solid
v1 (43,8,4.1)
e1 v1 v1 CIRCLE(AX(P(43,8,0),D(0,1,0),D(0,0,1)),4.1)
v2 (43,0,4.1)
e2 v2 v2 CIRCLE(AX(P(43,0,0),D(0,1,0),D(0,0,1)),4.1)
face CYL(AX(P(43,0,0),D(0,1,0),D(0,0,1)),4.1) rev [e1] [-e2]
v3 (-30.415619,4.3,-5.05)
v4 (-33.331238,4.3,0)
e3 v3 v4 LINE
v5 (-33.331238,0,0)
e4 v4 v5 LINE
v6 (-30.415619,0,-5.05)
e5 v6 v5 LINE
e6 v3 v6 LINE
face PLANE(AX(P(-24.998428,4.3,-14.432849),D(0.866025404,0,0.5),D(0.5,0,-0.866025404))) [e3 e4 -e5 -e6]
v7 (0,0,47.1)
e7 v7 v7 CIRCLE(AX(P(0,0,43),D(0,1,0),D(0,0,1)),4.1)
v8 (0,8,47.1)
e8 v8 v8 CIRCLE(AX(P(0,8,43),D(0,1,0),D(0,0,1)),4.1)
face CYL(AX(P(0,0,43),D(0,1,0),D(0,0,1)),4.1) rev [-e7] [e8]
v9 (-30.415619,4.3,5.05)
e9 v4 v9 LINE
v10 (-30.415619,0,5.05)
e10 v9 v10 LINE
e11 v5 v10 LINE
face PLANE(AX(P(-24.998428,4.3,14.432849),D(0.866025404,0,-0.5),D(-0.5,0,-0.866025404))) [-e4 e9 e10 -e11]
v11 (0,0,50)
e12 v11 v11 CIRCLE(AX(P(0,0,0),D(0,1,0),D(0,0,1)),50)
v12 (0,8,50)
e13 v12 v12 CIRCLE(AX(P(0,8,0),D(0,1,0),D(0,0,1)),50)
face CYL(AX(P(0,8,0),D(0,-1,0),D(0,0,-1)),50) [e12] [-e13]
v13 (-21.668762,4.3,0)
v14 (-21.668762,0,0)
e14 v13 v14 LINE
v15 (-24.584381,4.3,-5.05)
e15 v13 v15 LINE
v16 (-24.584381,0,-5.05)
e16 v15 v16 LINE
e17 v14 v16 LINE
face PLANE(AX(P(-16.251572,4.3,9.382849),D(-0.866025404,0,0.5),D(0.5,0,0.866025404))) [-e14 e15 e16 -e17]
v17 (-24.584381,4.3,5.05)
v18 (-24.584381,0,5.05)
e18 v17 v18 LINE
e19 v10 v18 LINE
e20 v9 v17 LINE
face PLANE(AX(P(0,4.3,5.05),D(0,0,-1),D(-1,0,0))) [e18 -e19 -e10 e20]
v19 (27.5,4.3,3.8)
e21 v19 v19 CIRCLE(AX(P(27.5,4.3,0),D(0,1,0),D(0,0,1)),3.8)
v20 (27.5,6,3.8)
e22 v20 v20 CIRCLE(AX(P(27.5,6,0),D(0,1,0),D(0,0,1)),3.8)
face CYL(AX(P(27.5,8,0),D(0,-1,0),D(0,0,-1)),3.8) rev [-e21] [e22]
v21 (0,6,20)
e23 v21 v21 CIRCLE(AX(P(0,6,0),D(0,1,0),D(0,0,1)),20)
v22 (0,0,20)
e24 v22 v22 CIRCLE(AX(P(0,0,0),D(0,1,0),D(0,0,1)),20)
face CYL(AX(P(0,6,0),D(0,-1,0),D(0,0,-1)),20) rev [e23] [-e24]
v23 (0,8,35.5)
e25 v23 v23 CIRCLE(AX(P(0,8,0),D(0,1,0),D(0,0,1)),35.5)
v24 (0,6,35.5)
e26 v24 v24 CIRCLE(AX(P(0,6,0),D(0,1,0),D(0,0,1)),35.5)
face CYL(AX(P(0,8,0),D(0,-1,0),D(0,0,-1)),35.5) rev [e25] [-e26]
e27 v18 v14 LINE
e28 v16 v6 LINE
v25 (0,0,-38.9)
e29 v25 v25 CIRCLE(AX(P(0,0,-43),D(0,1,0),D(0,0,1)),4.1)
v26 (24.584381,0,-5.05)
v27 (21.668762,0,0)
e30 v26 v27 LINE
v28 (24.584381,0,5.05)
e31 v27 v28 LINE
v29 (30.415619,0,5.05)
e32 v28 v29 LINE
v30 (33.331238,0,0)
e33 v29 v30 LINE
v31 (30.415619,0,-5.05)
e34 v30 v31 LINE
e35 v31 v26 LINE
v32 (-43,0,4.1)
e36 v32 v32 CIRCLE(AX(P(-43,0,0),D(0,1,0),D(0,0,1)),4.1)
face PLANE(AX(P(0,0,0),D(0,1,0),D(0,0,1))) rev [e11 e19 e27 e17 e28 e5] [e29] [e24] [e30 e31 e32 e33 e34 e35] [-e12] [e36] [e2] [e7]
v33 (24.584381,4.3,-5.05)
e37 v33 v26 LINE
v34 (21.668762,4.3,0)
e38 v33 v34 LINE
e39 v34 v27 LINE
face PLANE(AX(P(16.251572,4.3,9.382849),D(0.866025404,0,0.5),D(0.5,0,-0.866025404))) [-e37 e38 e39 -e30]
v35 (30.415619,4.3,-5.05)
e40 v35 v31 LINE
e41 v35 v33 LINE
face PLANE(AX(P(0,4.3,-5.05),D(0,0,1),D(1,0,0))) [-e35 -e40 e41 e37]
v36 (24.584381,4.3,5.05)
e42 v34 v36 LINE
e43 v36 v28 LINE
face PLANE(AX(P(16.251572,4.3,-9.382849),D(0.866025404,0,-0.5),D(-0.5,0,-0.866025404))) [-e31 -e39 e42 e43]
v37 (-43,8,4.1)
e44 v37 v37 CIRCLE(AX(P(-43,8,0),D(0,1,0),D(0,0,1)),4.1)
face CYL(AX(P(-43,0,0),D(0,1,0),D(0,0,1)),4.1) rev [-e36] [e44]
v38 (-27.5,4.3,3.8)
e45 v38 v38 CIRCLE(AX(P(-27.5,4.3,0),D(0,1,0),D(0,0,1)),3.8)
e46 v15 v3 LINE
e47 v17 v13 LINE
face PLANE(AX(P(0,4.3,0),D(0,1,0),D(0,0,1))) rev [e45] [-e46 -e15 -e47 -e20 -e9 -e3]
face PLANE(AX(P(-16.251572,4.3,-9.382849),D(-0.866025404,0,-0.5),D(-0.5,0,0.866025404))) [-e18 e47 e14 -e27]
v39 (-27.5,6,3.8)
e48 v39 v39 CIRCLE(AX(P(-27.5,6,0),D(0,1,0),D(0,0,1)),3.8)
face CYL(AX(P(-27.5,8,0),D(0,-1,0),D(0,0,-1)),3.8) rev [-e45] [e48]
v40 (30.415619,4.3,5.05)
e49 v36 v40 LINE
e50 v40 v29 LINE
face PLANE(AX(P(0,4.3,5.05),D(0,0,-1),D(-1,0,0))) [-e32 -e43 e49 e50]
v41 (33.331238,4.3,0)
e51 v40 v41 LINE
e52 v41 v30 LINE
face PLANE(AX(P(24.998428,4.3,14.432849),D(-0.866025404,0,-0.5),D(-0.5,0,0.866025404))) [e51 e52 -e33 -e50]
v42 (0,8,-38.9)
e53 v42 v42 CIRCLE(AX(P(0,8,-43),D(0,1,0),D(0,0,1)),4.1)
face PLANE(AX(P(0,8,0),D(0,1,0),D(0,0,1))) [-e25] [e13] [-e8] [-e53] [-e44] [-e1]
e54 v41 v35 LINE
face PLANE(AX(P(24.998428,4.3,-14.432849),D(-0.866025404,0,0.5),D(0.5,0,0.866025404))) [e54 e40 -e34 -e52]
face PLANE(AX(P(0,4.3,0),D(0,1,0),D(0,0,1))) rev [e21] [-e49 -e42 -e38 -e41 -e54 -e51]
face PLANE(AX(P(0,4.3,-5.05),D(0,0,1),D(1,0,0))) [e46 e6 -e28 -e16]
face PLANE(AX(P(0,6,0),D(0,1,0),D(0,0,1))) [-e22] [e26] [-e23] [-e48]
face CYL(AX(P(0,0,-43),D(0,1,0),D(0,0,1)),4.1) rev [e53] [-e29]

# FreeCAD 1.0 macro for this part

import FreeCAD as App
import Part
import Sketcher
Q = App.Units.Quantity


def add_polygon(sketch, points):
    """Adds a closed chain of lines whose ends are joined by coincident constraints."""
    first, n = sketch.GeometryCount, len(points)
    for a, b in zip(points, points[1:] + points[:1]):
        sketch.addGeometry(Part.LineSegment(App.Vector(*a, 0), App.Vector(*b, 0)), False)
    for i in range(n):
        sketch.addConstraint(Sketcher.Constraint("Coincident", first + i, 2, first + (i + 1) % n, 1))

doc = App.newDocument("Part")
body = doc.addObject("PartDesign::Body", "Body")

# Sketch on XZ plane
sketch1 = body.newObject("Sketcher::SketchObject", "Sketch")
sketch1.AttachmentSupport = (doc.getObject("XZ_Plane"), [""])
sketch1.MapMode = "FlatFace"
sketch1.addGeometry([
    Part.Circle(App.Vector(0, 0, 0), App.Vector(0, 0, 1), 50),
    Part.Circle(App.Vector(0, 0, 0), App.Vector(0, 0, 1), 35.5),
], False)
sketch1.addConstraint([
    Sketcher.Constraint("Coincident", 0, 3, -1, 1),
    Sketcher.Constraint("Coincident", 1, 3, -1, 1),
    Sketcher.Constraint("Diameter", 0, 100.0),
    Sketcher.Constraint("Diameter", 1, 71.0),
])
pad1 = body.newObject("PartDesign::Pad", "Pad")
pad1.Profile = sketch1
pad1.Length = 8
pad1.Reversed = True

# Sketch on XZ plane
sketch2 = body.newObject("Sketcher::SketchObject", "Sketch001")
sketch2.AttachmentSupport = (doc.getObject("XZ_Plane"), [""])
sketch2.MapMode = "FlatFace"
sketch2.AttachmentOffset = App.Placement(App.Vector(0, 0, -8), App.Rotation())
sketch2.addGeometry([
    Part.Circle(App.Vector(0, 43, 0), App.Vector(0, 0, 1), 4.1),
    Part.Circle(App.Vector(-43, 0, 0), App.Vector(0, 0, 1), 4.1),
    Part.Circle(App.Vector(0, -43, 0), App.Vector(0, 0, 1), 4.1),
    Part.Circle(App.Vector(43, 0, 0), App.Vector(0, 0, 1), 4.1),
], False)
sketch2.addConstraint([
    Sketcher.Constraint("Equal", 0, 1),
    Sketcher.Constraint("Equal", 1, 2),
    Sketcher.Constraint("Equal", 2, 3),
    Sketcher.Constraint("Symmetric", 0, 3, 2, 3, -1, 1),
    Sketcher.Constraint("Symmetric", 1, 3, 3, 3, -1, 1),
    Sketcher.Constraint("PointOnObject", 0, 3, -2),
    Sketcher.Constraint("PointOnObject", 1, 3, -1),
    Sketcher.Constraint("Diameter", 0, 8.2),
    Sketcher.Constraint("DistanceY", -1, 1, 0, 3, 43.0),
    Sketcher.Constraint("DistanceX", 1, 3, -1, 1, 43.0),
])
pocket1 = body.newObject("PartDesign::Pocket", "Pocket")
pocket1.Profile = sketch2
pocket1.Type = "ThroughAll"
pocket1.Midplane = True

# Sketch on XZ plane
sketch3 = body.newObject("Sketcher::SketchObject", "Sketch002")
sketch3.AttachmentSupport = (doc.getObject("XZ_Plane"), [""])
sketch3.MapMode = "FlatFace"
sketch3.addGeometry([
    Part.Circle(App.Vector(0, 0, 0), App.Vector(0, 0, 1), 35.5),
    Part.Circle(App.Vector(0, 0, 0), App.Vector(0, 0, 1), 20),
], False)
sketch3.addConstraint([
    Sketcher.Constraint("Coincident", 0, 3, -1, 1),
    Sketcher.Constraint("Coincident", 1, 3, -1, 1),
    Sketcher.Constraint("Diameter", 0, 71.0),
    Sketcher.Constraint("Diameter", 1, 40.0),
])
pad2 = body.newObject("PartDesign::Pad", "Pad001")
pad2.Profile = sketch3
pad2.Length = 6
pad2.Reversed = True

# Sketch on XZ plane
sketch4 = body.newObject("Sketcher::SketchObject", "Sketch003")
sketch4.AttachmentSupport = (doc.getObject("XZ_Plane"), [""])
sketch4.MapMode = "FlatFace"
add_polygon(sketch4, [(-21.668762, 0), (-24.584381, -5.05), (-30.415619, -5.05), (-33.331238, 0), (-30.415619, 5.05), (-24.584381, 5.05)])  # lines 0-5
add_polygon(sketch4, [(33.331238, 0), (30.415619, -5.05), (24.584381, -5.05), (21.668762, 0), (24.584381, 5.05), (30.415619, 5.05)])  # lines 6-11
sketch4.addConstraint([
    Sketcher.Constraint("Horizontal", 1),
    Sketcher.Constraint("Horizontal", 4),
    Sketcher.Constraint("Horizontal", 7),
    Sketcher.Constraint("Horizontal", 10),
    Sketcher.Constraint("Symmetric", 3, 2, 6, 2, -1, 1),
    Sketcher.Constraint("Symmetric", 5, 2, 8, 2, -1, 1),
    Sketcher.Constraint("Symmetric", 0, 2, 9, 2, -1, 1),
    Sketcher.Constraint("Symmetric", 2, 2, 11, 2, -1, 1),
    Sketcher.Constraint("Symmetric", 1, 2, 6, 2, -2),
    Sketcher.Constraint("PointOnObject", 2, 2, -1),
    Sketcher.Constraint("PointOnObject", 5, 2, -1),
    Sketcher.Constraint("Parallel", 0, 3),
    Sketcher.Constraint("Parallel", 2, 5),
    Sketcher.Constraint("Parallel", 5, 8),
    Sketcher.Constraint("Parallel", 8, 11),
    Sketcher.Constraint("Angle", 0, Q("-120 deg")),
    Sketcher.Constraint("DistanceX", 0, 2, 6, 2, 55.0),
    Sketcher.Constraint("DistanceY", 1, 2, 3, 2, 10.1),
    Sketcher.Constraint("DistanceX", 1, 2, 1, 1, 5.831238),
])
pocket2 = body.newObject("PartDesign::Pocket", "Pocket001")
pocket2.Profile = sketch4
pocket2.Length = 4.3

# Sketch on XZ plane
sketch5 = body.newObject("Sketcher::SketchObject", "Sketch004")
sketch5.AttachmentSupport = (doc.getObject("XZ_Plane"), [""])
sketch5.MapMode = "FlatFace"
sketch5.AttachmentOffset = App.Placement(App.Vector(0, 0, -6), App.Rotation())
sketch5.addGeometry([
    Part.Circle(App.Vector(-27.5, 0, 0), App.Vector(0, 0, 1), 3.8),
    Part.Circle(App.Vector(27.5, 0, 0), App.Vector(0, 0, 1), 3.8),
], False)
sketch5.addConstraint([
    Sketcher.Constraint("Equal", 0, 1),
    Sketcher.Constraint("Symmetric", 0, 3, 1, 3, -1, 1),
    Sketcher.Constraint("PointOnObject", 0, 3, -1),
    Sketcher.Constraint("Diameter", 0, 7.6),
    Sketcher.Constraint("DistanceX", 0, 3, 1, 3, 55.0),
])
pocket3 = body.newObject("PartDesign::Pocket", "Pocket002")
pocket3.Profile = sketch5
pocket3.Type = "ThroughAll"
pocket3.Midplane = True

doc.recompute()
